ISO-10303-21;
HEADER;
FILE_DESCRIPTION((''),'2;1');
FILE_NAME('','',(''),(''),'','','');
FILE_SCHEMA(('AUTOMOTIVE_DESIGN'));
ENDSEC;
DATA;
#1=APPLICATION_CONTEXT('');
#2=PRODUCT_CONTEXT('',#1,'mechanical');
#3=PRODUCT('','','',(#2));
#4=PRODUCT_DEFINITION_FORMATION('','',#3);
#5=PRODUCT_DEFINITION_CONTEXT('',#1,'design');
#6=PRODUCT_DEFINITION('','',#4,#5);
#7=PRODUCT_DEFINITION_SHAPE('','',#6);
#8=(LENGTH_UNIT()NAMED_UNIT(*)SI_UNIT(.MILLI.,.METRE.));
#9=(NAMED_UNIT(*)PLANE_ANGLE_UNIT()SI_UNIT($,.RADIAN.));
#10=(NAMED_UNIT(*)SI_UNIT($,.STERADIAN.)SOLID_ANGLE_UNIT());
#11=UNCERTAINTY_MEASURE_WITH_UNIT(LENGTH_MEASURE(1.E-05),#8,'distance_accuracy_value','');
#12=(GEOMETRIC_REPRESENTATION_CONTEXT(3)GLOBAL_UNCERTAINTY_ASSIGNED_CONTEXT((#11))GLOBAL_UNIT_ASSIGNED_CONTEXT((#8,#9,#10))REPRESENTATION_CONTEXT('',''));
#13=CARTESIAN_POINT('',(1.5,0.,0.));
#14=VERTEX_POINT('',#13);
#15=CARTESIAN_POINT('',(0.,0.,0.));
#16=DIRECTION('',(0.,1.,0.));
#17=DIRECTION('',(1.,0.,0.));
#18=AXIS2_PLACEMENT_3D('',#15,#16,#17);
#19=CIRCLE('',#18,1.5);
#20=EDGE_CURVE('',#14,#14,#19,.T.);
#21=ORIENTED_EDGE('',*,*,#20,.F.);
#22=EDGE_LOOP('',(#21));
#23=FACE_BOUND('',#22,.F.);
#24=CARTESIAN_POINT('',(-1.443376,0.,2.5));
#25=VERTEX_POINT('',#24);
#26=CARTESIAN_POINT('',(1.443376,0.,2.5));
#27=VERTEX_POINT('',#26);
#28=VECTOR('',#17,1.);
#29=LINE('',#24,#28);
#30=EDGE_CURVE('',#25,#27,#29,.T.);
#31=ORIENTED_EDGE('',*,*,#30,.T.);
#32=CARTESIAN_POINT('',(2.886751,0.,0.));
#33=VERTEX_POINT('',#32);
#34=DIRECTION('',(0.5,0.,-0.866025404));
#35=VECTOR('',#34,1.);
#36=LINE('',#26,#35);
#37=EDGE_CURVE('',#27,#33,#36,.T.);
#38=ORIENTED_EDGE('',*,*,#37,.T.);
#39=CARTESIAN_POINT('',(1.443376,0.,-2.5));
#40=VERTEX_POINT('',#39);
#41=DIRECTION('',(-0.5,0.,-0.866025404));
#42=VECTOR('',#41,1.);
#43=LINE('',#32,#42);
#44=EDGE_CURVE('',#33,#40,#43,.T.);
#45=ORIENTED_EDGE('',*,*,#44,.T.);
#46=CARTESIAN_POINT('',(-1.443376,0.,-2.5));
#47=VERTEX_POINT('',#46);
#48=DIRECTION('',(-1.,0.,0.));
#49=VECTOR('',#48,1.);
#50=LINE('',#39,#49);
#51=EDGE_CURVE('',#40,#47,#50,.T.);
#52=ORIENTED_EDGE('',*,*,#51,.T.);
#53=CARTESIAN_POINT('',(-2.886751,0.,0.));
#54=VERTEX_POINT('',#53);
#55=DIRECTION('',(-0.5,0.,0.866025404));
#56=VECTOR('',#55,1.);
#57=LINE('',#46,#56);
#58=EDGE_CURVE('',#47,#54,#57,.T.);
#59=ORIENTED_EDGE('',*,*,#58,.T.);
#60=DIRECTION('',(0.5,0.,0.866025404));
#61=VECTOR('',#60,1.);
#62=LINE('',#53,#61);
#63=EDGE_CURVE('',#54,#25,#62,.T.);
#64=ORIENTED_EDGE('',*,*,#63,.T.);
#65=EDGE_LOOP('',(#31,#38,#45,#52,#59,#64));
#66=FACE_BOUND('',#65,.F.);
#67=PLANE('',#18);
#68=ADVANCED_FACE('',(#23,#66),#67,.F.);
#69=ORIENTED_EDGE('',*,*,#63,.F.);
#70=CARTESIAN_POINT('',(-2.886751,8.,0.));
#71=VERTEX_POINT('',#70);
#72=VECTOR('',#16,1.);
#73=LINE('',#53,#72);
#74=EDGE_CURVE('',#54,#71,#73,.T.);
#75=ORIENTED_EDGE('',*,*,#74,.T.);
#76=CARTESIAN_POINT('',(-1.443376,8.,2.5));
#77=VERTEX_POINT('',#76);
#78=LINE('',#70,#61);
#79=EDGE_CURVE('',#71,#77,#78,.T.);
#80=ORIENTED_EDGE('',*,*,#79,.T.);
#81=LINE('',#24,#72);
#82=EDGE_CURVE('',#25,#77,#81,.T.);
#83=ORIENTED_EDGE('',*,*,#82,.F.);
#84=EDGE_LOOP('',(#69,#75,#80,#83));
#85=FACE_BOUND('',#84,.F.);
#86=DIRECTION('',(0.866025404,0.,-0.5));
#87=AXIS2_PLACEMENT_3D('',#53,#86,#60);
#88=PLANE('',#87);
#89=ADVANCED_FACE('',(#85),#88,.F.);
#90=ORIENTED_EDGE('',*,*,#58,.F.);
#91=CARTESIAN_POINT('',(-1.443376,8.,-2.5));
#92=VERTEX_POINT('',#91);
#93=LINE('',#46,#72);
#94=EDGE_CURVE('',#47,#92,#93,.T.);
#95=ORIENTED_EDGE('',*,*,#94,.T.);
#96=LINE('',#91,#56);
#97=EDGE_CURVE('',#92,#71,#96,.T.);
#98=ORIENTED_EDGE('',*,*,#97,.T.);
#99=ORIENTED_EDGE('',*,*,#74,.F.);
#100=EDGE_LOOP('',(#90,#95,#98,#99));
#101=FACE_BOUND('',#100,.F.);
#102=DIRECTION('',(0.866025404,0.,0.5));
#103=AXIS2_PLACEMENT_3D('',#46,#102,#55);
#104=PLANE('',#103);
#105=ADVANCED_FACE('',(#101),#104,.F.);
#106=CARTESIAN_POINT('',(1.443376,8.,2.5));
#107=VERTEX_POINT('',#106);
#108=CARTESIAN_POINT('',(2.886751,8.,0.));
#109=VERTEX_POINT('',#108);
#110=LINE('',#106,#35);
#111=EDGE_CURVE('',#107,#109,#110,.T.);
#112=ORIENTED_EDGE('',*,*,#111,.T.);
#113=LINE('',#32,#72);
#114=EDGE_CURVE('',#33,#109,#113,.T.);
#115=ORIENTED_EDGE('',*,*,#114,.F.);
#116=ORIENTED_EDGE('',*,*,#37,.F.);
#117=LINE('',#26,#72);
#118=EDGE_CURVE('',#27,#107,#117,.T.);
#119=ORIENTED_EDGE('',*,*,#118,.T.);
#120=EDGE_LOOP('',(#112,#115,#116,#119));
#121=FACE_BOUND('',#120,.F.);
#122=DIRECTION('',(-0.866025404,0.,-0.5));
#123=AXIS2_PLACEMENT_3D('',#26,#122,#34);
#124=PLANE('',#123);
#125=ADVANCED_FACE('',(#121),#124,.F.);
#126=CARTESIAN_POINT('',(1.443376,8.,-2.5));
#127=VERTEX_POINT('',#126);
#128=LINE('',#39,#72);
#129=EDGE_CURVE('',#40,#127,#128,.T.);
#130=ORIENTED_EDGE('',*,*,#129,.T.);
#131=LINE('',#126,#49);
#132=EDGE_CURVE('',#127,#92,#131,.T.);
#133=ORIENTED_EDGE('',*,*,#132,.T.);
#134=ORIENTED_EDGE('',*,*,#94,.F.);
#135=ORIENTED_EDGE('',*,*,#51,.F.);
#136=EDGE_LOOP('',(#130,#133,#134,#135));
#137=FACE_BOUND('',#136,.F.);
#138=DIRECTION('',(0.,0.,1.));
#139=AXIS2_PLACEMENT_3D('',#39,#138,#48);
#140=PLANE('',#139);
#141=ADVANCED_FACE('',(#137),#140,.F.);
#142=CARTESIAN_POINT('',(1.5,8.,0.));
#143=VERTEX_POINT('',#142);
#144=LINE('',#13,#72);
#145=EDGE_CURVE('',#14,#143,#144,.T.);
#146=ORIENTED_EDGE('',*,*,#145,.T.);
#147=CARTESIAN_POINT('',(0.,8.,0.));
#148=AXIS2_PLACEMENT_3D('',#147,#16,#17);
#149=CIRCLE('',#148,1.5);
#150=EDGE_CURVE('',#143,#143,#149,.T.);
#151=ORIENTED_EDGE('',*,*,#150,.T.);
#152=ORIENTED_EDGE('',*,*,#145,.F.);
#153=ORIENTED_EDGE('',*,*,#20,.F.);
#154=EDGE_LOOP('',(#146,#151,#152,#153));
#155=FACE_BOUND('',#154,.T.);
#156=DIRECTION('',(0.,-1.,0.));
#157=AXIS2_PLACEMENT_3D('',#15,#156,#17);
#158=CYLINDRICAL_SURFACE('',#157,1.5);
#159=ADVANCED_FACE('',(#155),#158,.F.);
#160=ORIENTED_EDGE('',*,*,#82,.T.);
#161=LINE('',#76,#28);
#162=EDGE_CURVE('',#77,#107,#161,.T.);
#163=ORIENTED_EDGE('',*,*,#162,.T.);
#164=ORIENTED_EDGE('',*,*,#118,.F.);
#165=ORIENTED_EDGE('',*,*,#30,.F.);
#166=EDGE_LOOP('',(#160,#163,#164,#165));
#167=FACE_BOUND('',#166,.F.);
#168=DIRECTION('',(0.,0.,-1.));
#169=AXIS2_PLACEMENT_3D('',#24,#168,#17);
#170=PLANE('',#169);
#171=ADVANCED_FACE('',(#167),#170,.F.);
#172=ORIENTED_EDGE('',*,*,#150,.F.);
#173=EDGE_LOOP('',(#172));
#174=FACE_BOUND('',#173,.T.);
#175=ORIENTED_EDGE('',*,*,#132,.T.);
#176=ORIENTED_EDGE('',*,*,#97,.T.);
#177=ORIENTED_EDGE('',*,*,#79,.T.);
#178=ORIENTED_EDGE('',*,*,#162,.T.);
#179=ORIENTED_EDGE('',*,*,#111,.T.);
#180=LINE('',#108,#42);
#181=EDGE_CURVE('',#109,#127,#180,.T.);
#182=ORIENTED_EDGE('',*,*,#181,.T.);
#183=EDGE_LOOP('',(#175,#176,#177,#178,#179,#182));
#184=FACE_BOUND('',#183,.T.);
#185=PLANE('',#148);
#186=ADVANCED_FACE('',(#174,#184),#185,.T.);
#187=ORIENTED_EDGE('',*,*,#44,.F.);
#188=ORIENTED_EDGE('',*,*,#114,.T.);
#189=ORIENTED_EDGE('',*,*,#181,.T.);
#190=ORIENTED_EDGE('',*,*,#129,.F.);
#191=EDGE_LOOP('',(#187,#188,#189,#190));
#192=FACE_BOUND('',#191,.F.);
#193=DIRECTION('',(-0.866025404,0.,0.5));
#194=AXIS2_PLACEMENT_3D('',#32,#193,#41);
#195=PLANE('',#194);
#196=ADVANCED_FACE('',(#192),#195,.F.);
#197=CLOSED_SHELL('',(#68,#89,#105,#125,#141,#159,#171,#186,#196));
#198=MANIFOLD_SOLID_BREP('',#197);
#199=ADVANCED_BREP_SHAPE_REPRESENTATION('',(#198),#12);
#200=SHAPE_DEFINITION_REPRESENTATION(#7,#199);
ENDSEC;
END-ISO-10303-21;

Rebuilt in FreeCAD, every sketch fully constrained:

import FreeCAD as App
import Part
import Sketcher
from FreeCAD import Vector
Q = App.Units.Quantity

doc = App.newDocument("Part")
body = doc.addObject("PartDesign::Body", "Body")

sketch1 = body.newObject("Sketcher::SketchObject", "Sketch")
sketch1.AttachmentSupport = (doc.getObject("XZ_Plane"), [""])
sketch1.MapMode = "FlatFace"
sketch1.addGeometry([
    Part.LineSegment(Vector(-1.443376, 2.5, 0), Vector(1.443376, 2.5, 0)),
    Part.LineSegment(Vector(1.443376, 2.5, 0), Vector(2.886751, 0, 0)),
    Part.LineSegment(Vector(2.886751, 0, 0), Vector(1.443376, -2.5, 0)),
    Part.LineSegment(Vector(1.443376, -2.5, 0), Vector(-1.443376, -2.5, 0)),
    Part.LineSegment(Vector(-1.443376, -2.5, 0), Vector(-2.886751, 0, 0)),
    Part.LineSegment(Vector(-2.886751, 0, 0), Vector(-1.443376, 2.5, 0)),
    Part.Circle(Vector(0, 0, 0), Vector(0, 0, 1), 1.5),
], False)
sketch1.addConstraint([
    Sketcher.Constraint("Coincident", 0, 2, 1, 1),
    Sketcher.Constraint("Coincident", 1, 2, 2, 1),
    Sketcher.Constraint("Coincident", 2, 2, 3, 1),
    Sketcher.Constraint("Coincident", 3, 2, 4, 1),
    Sketcher.Constraint("Coincident", 4, 2, 5, 1),
    Sketcher.Constraint("Coincident", 5, 2, 0, 1),
    Sketcher.Constraint("Horizontal", 0),
    Sketcher.Constraint("Horizontal", 3),
    Sketcher.Constraint("Coincident", 6, 3, -1, 1),
    Sketcher.Constraint("Symmetric", 0, 2, 3, 2, -1, 1),
    Sketcher.Constraint("Symmetric", 1, 2, 4, 2, -1, 1),
    Sketcher.Constraint("PointOnObject", 1, 2, -1),
    Sketcher.Constraint("Parallel", 2, 5),
    Sketcher.Constraint("Vertical", 0, 2, 2, 2),
    Sketcher.Constraint("Diameter", 6, Q("3 mm")),
    Sketcher.Constraint("Angle", 1, Q("-60 deg")),
    Sketcher.Constraint("DistanceY", 2, 2, 0, 2, Q("5 mm")),
    Sketcher.Constraint("DistanceX", 0, 1, 0, 2, Q("2.886751 mm")),
])
pad1 = body.newObject("PartDesign::Pad", "Pad")
pad1.Profile = sketch1
pad1.Length = 8
pad1.Reversed = True

doc.recompute()
